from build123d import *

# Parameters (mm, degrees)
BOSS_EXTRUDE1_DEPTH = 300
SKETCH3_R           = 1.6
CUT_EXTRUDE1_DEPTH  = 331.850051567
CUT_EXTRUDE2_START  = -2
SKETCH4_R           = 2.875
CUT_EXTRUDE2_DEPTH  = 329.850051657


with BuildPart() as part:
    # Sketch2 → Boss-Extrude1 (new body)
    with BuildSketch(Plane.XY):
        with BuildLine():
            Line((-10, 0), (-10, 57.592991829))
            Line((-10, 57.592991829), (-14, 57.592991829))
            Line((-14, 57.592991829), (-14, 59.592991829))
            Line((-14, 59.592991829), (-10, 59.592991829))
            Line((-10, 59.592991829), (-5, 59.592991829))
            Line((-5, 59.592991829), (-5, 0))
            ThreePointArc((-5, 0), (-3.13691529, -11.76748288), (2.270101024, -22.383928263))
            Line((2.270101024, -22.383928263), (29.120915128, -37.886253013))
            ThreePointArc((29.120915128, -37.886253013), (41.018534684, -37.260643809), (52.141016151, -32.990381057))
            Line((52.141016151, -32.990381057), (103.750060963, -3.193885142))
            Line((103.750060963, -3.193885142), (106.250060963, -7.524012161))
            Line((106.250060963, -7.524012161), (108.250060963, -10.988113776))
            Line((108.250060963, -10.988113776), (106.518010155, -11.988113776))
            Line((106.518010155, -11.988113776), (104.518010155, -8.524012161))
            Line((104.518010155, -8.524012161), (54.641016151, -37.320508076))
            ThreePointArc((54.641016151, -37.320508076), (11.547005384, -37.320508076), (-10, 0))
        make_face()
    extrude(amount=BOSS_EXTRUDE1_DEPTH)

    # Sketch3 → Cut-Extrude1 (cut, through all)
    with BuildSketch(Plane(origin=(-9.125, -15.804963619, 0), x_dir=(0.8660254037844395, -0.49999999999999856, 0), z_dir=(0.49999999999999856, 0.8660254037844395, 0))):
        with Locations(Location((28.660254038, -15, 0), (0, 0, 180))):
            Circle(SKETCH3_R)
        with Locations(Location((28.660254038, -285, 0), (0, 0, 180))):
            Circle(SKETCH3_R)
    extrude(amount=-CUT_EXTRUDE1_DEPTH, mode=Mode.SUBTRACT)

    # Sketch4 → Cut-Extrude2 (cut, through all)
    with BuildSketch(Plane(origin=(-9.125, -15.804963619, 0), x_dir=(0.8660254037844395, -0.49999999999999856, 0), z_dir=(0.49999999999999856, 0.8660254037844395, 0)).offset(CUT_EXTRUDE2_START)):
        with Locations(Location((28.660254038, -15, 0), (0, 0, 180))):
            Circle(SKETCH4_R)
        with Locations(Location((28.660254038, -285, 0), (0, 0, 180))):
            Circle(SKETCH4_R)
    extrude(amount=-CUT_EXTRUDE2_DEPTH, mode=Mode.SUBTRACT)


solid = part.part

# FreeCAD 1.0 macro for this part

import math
import FreeCAD as App
import Part
import Sketcher
from FreeCAD import Vector
Q = App.Units.Quantity

doc = App.newDocument("Part")
body = doc.addObject("PartDesign::Body", "Body")

sketch1 = body.newObject("Sketcher::SketchObject", "Sketch")
sketch1.AttachmentSupport = (doc.getObject("XY_Plane"), [""])
sketch1.MapMode = "FlatFace"
sketch1.addGeometry(Part.LineSegment(Vector(-10, 57.6, 0), Vector(-10, 0, 0)), False)
sketch1.addGeometry(Part.ArcOfCircle(Part.Circle(Vector(33.1, 0, 0), Vector(0, 0, 1), 43.1), math.radians(180), math.radians(300)), False)
sketch1.addGeometry(Part.LineSegment(Vector(54.6, -37.3, 0), Vector(104.5, -8.5, 0)), False)
sketch1.addGeometry(Part.LineSegment(Vector(104.5, -8.5, 0), Vector(106.5, -12, 0)), False)
sketch1.addGeometry(Part.LineSegment(Vector(106.5, -12, 0), Vector(108.3, -11, 0)), False)
sketch1.addGeometry(Part.LineSegment(Vector(108.3, -11, 0), Vector(106.3, -7.5, 0)), False)
sketch1.addGeometry(Part.LineSegment(Vector(106.3, -7.5, 0), Vector(103.8, -3.2, 0)), False)
sketch1.addGeometry(Part.LineSegment(Vector(103.8, -3.2, 0), Vector(52.1, -33, 0)), False)
sketch1.addGeometry(Part.ArcOfCircle(Part.Circle(Vector(33.1, 0, 0), Vector(0, 0, 1), 38.1), math.radians(-96), math.radians(-60)), False)
sketch1.addGeometry(Part.LineSegment(Vector(29.1, -37.9, 0), Vector(2.3, -22.4, 0)), False)
sketch1.addGeometry(Part.ArcOfCircle(Part.Circle(Vector(33.1, 0, 0), Vector(0, 0, 1), 38.1), math.radians(-180), math.radians(-144)), False)
sketch1.addGeometry(Part.LineSegment(Vector(-5, 0, 0), Vector(-5, 59.6, 0)), False)
sketch1.addGeometry(Part.LineSegment(Vector(-5, 59.6, 0), Vector(-14, 59.6, 0)), False)
sketch1.addGeometry(Part.LineSegment(Vector(-14, 59.6, 0), Vector(-14, 57.6, 0)), False)
sketch1.addGeometry(Part.LineSegment(Vector(-14, 57.6, 0), Vector(-10, 57.6, 0)), False)
sketch1.addConstraint(Sketcher.Constraint("Tangent", 0, 2, 1, 1))
sketch1.addConstraint(Sketcher.Constraint("Tangent", 1, 2, 2, 1))
sketch1.addConstraint(Sketcher.Constraint("Coincident", 2, 2, 3, 1))
sketch1.addConstraint(Sketcher.Constraint("Coincident", 3, 2, 4, 1))
sketch1.addConstraint(Sketcher.Constraint("Coincident", 4, 2, 5, 1))
sketch1.addConstraint(Sketcher.Constraint("Coincident", 5, 2, 6, 1))
sketch1.addConstraint(Sketcher.Constraint("Coincident", 6, 2, 7, 1))
sketch1.addConstraint(Sketcher.Constraint("Tangent", 7, 2, 8, 2))
sketch1.addConstraint(Sketcher.Constraint("Coincident", 8, 1, 9, 1))
sketch1.addConstraint(Sketcher.Constraint("Coincident", 9, 2, 10, 2))
sketch1.addConstraint(Sketcher.Constraint("Tangent", 10, 1, 11, 1))
sketch1.addConstraint(Sketcher.Constraint("Coincident", 11, 2, 12, 1))
sketch1.addConstraint(Sketcher.Constraint("Coincident", 12, 2, 13, 1))
sketch1.addConstraint(Sketcher.Constraint("Coincident", 13, 2, 14, 1))
sketch1.addConstraint(Sketcher.Constraint("Coincident", 14, 2, 0, 1))
sketch1.addConstraint(Sketcher.Constraint("Vertical", 0))
sketch1.addConstraint(Sketcher.Constraint("Vertical", 11))
sketch1.addConstraint(Sketcher.Constraint("Horizontal", 12))
sketch1.addConstraint(Sketcher.Constraint("Vertical", 13))
sketch1.addConstraint(Sketcher.Constraint("Horizontal", 14))
sketch1.addConstraint(Sketcher.Constraint("Coincident", 8, 3, 1, 3))
sketch1.addConstraint(Sketcher.Constraint("Coincident", 10, 3, 1, 3))
sketch1.addConstraint(Sketcher.Constraint("Equal", 8, 10))
sketch1.addConstraint(Sketcher.Constraint("PointOnObject", 1, 3, -1))
sketch1.addConstraint(Sketcher.Constraint("Perpendicular", 2, 3))
sketch1.addConstraint(Sketcher.Constraint("Perpendicular", 3, 4))
sketch1.addConstraint(Sketcher.Constraint("Perpendicular", 4, 5))
sketch1.addConstraint(Sketcher.Constraint("Parallel", 5, 6))
sketch1.addConstraint(Sketcher.Constraint("Perpendicular", 6, 7))
sketch1.addConstraint(Sketcher.Constraint("Equal", 3, 5))
sketch1.addConstraint(Sketcher.Constraint("DistanceX", 12, 2, 12, 1, 9.0))
sketch1.addConstraint(Sketcher.Constraint("DistanceX", 14, 1, 14, 2, 4.0))
sketch1.addConstraint(Sketcher.Constraint("DistanceY", 13, 2, 13, 1, 2.0))
sketch1.addConstraint(Sketcher.Constraint("Angle", 2, Q("30 deg")))
sketch1.addConstraint(Sketcher.Constraint("Angle", 9, Q("150 deg")))
sketch1.addConstraint(Sketcher.Constraint("Distance", 3, 4.0))
sketch1.addConstraint(Sketcher.Constraint("Distance", 4, 2.0))
sketch1.addConstraint(Sketcher.Constraint("DistanceX", 0, 2, -1, 1, 10.0))
sketch1.addConstraint(Sketcher.Constraint("Radius", 1, 43.094011))
sketch1.addConstraint(Sketcher.Constraint("DistanceX", 10, 3, 2, 2, 71.423999))
sketch1.addConstraint(Sketcher.Constraint("DistanceY", 0, 2, 0, 1, 57.592992))
sketch1.addConstraint(Sketcher.Constraint("DistanceX", -1, 1, 9, 2, 2.270101))
pad1 = body.newObject("PartDesign::Pad", "Pad")
pad1.Profile = sketch1
pad1.Length = 300

sketch2 = body.newObject("Sketcher::SketchObject", "Sketch001")
sketch2.Placement = App.Placement(Vector(-9.125, -15.804964, 0), App.Rotation(Vector(0.866025404, -0.5, 0), Vector(0, 0, -1), Vector(0.5, 0.866025404, 0), "ZXY"))
sketch2.addGeometry(Part.Circle(Vector(28.7, -15, 0), Vector(0, 0, 1), 1.6), False)
sketch2.addGeometry(Part.Circle(Vector(28.7, -285, 0), Vector(0, 0, 1), 1.6), False)
sketch2.addConstraint(Sketcher.Constraint("Equal", 0, 1))
sketch2.addConstraint(Sketcher.Constraint("Vertical", 0, 3, 1, 3))
sketch2.addConstraint(Sketcher.Constraint("Diameter", 0, 3.2))
sketch2.addConstraint(Sketcher.Constraint("DistanceY", 0, 3, -1, 1, 15.0))
sketch2.addConstraint(Sketcher.Constraint("DistanceY", 1, 3, -1, 1, 285.0))
sketch2.addConstraint(Sketcher.Constraint("DistanceX", -1, 1, 0, 3, 28.660254))
pocket1 = body.newObject("PartDesign::Pocket", "Pocket")
pocket1.Profile = sketch2
pocket1.Type = "ThroughAll"

sketch3 = body.newObject("Sketcher::SketchObject", "Sketch002")
sketch3.Placement = App.Placement(Vector(-10.125, -17.537014, 0), App.Rotation(Vector(0.866025404, -0.5, 0), Vector(0, 0, -1), Vector(0.5, 0.866025404, 0), "ZXY"))
sketch3.addGeometry(Part.Circle(Vector(28.7, -15, 0), Vector(0, 0, 1), 2.9), False)
sketch3.addGeometry(Part.Circle(Vector(28.7, -285, 0), Vector(0, 0, 1), 2.9), False)
sketch3.addConstraint(Sketcher.Constraint("Equal", 0, 1))
sketch3.addConstraint(Sketcher.Constraint("Vertical", 0, 3, 1, 3))
sketch3.addConstraint(Sketcher.Constraint("Diameter", 0, 5.75))
sketch3.addConstraint(Sketcher.Constraint("DistanceY", 0, 3, -1, 1, 15.0))
sketch3.addConstraint(Sketcher.Constraint("DistanceY", 1, 3, -1, 1, 285.0))
sketch3.addConstraint(Sketcher.Constraint("DistanceX", -1, 1, 0, 3, 28.660254))
pocket2 = body.newObject("PartDesign::Pocket", "Pocket001")
pocket2.Profile = sketch3
pocket2.Type = "ThroughAll"

doc.recompute()
